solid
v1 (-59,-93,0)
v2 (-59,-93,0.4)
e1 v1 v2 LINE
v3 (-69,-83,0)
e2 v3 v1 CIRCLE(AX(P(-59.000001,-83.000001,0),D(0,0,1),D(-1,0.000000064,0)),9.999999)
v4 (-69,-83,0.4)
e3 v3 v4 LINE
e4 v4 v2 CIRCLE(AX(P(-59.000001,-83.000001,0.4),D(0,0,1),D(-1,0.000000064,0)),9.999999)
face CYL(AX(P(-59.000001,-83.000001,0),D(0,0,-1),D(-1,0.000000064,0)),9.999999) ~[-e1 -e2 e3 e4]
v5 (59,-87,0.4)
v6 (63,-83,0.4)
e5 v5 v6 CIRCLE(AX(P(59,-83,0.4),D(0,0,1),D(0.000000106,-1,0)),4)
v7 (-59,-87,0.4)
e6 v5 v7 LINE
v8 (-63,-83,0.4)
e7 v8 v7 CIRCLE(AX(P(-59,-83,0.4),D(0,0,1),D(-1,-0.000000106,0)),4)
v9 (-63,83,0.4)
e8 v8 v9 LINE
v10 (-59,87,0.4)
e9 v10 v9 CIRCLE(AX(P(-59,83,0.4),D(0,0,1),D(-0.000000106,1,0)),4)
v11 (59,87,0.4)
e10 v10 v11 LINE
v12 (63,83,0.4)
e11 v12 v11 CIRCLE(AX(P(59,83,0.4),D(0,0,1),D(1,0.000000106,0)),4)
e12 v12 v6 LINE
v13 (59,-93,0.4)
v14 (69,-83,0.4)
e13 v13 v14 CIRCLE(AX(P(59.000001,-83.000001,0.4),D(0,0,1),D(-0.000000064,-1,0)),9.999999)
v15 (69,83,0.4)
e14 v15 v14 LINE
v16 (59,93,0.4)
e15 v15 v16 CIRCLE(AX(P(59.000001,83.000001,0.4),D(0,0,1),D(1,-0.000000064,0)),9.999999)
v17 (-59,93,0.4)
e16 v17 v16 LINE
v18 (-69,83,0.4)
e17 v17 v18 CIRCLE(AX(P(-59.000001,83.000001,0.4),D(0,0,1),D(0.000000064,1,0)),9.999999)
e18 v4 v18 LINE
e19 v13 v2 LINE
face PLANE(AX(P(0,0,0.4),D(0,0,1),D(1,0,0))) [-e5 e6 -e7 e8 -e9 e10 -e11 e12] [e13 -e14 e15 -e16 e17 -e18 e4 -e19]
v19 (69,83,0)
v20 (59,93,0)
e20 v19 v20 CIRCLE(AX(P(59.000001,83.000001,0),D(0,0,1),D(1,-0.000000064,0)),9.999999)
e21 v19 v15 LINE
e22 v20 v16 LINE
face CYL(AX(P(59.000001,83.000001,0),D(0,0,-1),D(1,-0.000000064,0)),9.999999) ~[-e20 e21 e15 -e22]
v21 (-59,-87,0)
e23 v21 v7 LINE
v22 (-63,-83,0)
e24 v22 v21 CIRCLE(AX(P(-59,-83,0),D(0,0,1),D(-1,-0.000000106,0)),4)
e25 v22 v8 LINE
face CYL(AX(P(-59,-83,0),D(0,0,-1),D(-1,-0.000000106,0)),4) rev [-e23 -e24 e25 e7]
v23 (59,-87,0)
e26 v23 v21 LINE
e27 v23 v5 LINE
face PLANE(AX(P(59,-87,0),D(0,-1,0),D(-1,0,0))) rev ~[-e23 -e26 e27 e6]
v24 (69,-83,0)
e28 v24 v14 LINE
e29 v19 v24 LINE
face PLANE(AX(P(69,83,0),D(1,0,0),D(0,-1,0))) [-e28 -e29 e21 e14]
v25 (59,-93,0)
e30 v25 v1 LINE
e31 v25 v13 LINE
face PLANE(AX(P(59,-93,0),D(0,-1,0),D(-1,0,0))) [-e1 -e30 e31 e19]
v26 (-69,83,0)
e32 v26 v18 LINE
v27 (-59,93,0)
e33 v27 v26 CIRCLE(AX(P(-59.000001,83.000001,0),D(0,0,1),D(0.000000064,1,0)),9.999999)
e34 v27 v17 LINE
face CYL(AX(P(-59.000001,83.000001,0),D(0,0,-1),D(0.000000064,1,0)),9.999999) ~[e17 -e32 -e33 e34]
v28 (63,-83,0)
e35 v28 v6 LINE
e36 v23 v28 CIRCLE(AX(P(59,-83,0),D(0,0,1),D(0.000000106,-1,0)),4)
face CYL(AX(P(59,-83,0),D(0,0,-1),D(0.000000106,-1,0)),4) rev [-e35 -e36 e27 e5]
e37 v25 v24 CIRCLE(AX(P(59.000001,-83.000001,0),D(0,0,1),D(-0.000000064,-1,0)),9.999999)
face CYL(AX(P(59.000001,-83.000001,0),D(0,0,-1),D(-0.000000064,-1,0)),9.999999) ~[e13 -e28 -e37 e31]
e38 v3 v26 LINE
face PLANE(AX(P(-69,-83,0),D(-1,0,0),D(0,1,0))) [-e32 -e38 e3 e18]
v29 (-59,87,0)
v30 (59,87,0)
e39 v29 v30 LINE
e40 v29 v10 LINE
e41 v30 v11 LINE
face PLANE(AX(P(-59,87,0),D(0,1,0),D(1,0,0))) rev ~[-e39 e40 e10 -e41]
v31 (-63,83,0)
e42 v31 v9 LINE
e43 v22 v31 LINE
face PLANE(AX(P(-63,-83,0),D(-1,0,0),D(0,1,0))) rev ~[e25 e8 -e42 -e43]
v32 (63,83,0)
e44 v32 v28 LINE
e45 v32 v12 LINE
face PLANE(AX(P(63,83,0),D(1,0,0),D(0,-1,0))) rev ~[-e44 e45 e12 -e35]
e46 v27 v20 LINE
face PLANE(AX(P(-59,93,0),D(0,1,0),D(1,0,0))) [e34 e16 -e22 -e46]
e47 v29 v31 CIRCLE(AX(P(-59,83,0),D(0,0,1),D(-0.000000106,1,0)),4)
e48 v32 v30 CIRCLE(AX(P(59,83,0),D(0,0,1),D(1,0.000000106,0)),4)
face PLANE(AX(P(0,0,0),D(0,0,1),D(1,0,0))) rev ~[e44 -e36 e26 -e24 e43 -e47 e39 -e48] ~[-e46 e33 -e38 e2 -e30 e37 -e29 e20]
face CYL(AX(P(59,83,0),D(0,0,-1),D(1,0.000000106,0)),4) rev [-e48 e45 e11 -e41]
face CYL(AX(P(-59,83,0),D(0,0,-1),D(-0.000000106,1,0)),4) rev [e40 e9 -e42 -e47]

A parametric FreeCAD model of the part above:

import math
import FreeCAD as App
import Part
import Sketcher

V = App.Vector
Q = App.Units.Quantity

doc = App.newDocument("Part")
body = doc.addObject("PartDesign::Body", "Body")

# Sketch on XY plane
sketch1 = body.newObject("Sketcher::SketchObject", "Sketch")
sketch1.AttachmentSupport = (doc.getObject("XY_Plane"), [""])
sketch1.MapMode = "FlatFace"
sketch1.addGeometry(Part.ArcOfCircle(Part.Circle(V(-59.000001, 83.000001, 0), V(0, 0, 1), 9.999999), math.radians(89.999996), math.radians(180.000004)), False)
sketch1.addGeometry(Part.LineSegment(V(-69, 83, 0), V(-69, -83, 0)), False)
sketch1.addGeometry(Part.ArcOfCircle(Part.Circle(V(-59.000001, -83.000001, 0), V(0, 0, 1), 9.999999), math.radians(179.999996), math.radians(270.000004)), False)
sketch1.addGeometry(Part.LineSegment(V(-59, -93, 0), V(59, -93, 0)), False)
sketch1.addGeometry(Part.ArcOfCircle(Part.Circle(V(59.000001, -83.000001, 0), V(0, 0, 1), 9.999999), math.radians(-90.000004), math.radians(0.000004)), False)
sketch1.addGeometry(Part.LineSegment(V(69, -83, 0), V(69, 83, 0)), False)
sketch1.addGeometry(Part.ArcOfCircle(Part.Circle(V(59.000001, 83.000001, 0), V(0, 0, 1), 9.999999), math.radians(-0.000004), math.radians(90.000004)), False)
sketch1.addGeometry(Part.LineSegment(V(59, 93, 0), V(-59, 93, 0)), False)
sketch1.addGeometry(Part.ArcOfCircle(Part.Circle(V(-59, 83, 0), V(0, 0, 1), 4), math.radians(90.000006), math.radians(179.999994)), False)
sketch1.addGeometry(Part.LineSegment(V(-59, 87, 0), V(59, 87, 0)), False)
sketch1.addGeometry(Part.ArcOfCircle(Part.Circle(V(59, 83, 0), V(0, 0, 1), 4), math.radians(0.000006), math.radians(89.999994)), False)
sketch1.addGeometry(Part.LineSegment(V(63, 83, 0), V(63, -83, 0)), False)
sketch1.addGeometry(Part.ArcOfCircle(Part.Circle(V(59, -83, 0), V(0, 0, 1), 4), math.radians(-89.999994), math.radians(-0.000006)), False)
sketch1.addGeometry(Part.LineSegment(V(59, -87, 0), V(-59, -87, 0)), False)
sketch1.addGeometry(Part.ArcOfCircle(Part.Circle(V(-59, -83, 0), V(0, 0, 1), 4), math.radians(-179.999994), math.radians(-90.000006)), False)
sketch1.addGeometry(Part.LineSegment(V(-63, -83, 0), V(-63, 83, 0)), False)
sketch1.addConstraint(Sketcher.Constraint("Tangent", 0, 2, 1, 1))
sketch1.addConstraint(Sketcher.Constraint("Tangent", 1, 2, 2, 1))
sketch1.addConstraint(Sketcher.Constraint("Tangent", 2, 2, 3, 1))
sketch1.addConstraint(Sketcher.Constraint("Tangent", 3, 2, 4, 1))
sketch1.addConstraint(Sketcher.Constraint("Tangent", 4, 2, 5, 1))
sketch1.addConstraint(Sketcher.Constraint("Tangent", 5, 2, 6, 1))
sketch1.addConstraint(Sketcher.Constraint("Tangent", 6, 2, 7, 1))
sketch1.addConstraint(Sketcher.Constraint("Tangent", 7, 2, 0, 1))
sketch1.addConstraint(Sketcher.Constraint("Tangent", 8, 1, 9, 1))
sketch1.addConstraint(Sketcher.Constraint("Tangent", 9, 2, 10, 2))
sketch1.addConstraint(Sketcher.Constraint("Tangent", 10, 1, 11, 1))
sketch1.addConstraint(Sketcher.Constraint("Tangent", 11, 2, 12, 2))
sketch1.addConstraint(Sketcher.Constraint("Tangent", 12, 1, 13, 1))
sketch1.addConstraint(Sketcher.Constraint("Tangent", 13, 2, 14, 2))
sketch1.addConstraint(Sketcher.Constraint("Tangent", 14, 1, 15, 1))
sketch1.addConstraint(Sketcher.Constraint("Tangent", 15, 2, 8, 2))
sketch1.addConstraint(Sketcher.Constraint("Vertical", 1))
sketch1.addConstraint(Sketcher.Constraint("Horizontal", 3))
sketch1.addConstraint(Sketcher.Constraint("Vertical", 5))
sketch1.addConstraint(Sketcher.Constraint("Horizontal", 7))
sketch1.addConstraint(Sketcher.Constraint("Horizontal", 9))
sketch1.addConstraint(Sketcher.Constraint("Vertical", 11))
sketch1.addConstraint(Sketcher.Constraint("Horizontal", 13))
sketch1.addConstraint(Sketcher.Constraint("Vertical", 15))
sketch1.addConstraint(Sketcher.Constraint("Coincident", 8, 3, 0, 3))
sketch1.addConstraint(Sketcher.Constraint("Coincident", 10, 3, 6, 3))
sketch1.addConstraint(Sketcher.Constraint("Coincident", 12, 3, 4, 3))
sketch1.addConstraint(Sketcher.Constraint("Equal", 0, 2))
sketch1.addConstraint(Sketcher.Constraint("Equal", 2, 4))
sketch1.addConstraint(Sketcher.Constraint("Equal", 4, 6))
sketch1.addConstraint(Sketcher.Constraint("Equal", 12, 14))
sketch1.addConstraint(Sketcher.Constraint("Symmetric", 0, 3, 4, 3, -1, 1))
sketch1.addConstraint(Sketcher.Constraint("Radius", 0, Q("9.999999 mm")))
sketch1.addConstraint(Sketcher.Constraint("Radius", 8, Q("4 mm")))
sketch1.addConstraint(Sketcher.Constraint("DistanceX", 3, 1, 3, 2, Q("118 mm")))
sketch1.addConstraint(Sketcher.Constraint("DistanceY", 1, 2, 1, 1, Q("166 mm")))
pad1 = body.newObject("PartDesign::Pad", "Pad")
pad1.Profile = sketch1
pad1.Length = 0.4

doc.recompute()
